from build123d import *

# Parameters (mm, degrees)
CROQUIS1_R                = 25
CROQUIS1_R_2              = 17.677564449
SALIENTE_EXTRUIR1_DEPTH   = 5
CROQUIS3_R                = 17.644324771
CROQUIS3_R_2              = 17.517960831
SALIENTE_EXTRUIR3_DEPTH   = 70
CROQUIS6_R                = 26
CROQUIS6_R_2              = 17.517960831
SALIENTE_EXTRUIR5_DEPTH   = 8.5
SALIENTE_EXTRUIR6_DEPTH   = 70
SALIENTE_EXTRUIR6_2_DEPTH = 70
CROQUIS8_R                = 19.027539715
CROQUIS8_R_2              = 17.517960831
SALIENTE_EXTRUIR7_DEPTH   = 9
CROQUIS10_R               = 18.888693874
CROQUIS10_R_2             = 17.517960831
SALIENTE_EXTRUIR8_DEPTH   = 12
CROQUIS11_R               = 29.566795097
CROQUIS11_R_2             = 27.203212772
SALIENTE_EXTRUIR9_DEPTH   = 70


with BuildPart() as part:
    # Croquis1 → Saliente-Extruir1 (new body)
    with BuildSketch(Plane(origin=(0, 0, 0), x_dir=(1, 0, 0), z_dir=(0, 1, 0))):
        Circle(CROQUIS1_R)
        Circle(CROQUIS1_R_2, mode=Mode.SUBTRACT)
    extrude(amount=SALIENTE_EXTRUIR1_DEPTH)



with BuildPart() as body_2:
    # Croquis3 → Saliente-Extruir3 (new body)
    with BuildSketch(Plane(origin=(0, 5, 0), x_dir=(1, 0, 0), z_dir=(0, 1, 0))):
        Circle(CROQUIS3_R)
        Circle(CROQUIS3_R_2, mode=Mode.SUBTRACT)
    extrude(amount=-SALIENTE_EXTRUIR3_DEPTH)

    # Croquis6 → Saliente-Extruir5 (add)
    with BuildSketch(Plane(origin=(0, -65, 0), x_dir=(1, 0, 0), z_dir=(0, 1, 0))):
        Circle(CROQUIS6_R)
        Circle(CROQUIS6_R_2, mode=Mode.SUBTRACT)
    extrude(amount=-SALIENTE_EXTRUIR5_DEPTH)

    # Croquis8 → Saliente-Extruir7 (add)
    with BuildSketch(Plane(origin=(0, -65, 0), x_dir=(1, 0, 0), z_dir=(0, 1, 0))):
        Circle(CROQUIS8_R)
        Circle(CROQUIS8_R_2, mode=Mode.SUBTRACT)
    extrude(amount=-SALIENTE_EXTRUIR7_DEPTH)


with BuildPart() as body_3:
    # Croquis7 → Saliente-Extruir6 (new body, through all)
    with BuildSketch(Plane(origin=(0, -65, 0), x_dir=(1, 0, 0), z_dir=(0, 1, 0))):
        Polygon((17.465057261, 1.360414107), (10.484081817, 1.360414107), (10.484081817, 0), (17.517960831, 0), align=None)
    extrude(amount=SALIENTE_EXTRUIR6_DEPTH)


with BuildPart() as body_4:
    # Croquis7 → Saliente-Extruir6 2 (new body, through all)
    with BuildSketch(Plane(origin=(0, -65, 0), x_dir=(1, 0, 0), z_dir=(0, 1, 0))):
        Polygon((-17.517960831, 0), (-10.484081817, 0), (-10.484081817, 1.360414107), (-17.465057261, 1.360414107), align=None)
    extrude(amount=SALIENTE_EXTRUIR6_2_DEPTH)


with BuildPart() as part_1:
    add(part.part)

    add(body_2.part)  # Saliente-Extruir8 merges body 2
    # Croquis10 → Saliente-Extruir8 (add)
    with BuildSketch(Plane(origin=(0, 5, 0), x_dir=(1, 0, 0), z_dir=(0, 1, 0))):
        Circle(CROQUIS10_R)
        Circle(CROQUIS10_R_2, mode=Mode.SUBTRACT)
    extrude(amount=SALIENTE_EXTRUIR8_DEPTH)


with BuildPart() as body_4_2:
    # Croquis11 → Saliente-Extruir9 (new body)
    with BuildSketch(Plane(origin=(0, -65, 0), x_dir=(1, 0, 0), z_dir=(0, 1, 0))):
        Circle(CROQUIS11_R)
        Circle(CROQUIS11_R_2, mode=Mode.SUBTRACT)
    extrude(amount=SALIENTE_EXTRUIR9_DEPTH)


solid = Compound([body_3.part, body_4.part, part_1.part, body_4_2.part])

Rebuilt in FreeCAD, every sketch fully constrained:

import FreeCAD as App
import Part
import Sketcher
from FreeCAD import Vector
Q = App.Units.Quantity


def add_polygon(sketch, points):
    """Adds a closed chain of lines whose ends are joined by coincident constraints."""
    first, n = sketch.GeometryCount, len(points)
    for a, b in zip(points, points[1:] + points[:1]):
        sketch.addGeometry(Part.LineSegment(App.Vector(*a, 0), App.Vector(*b, 0)), False)
    for i in range(n):
        sketch.addConstraint(Sketcher.Constraint("Coincident", first + i, 2, first + (i + 1) % n, 1))

doc = App.newDocument("Part")
body = doc.addObject("PartDesign::Body", "Body")

# Sketch on XZ plane
sketch1 = doc.addObject("Sketcher::SketchObject", "Sketch")
body.addObject(sketch1)
sketch1.AttachmentSupport = (doc.XZ_Plane, [""])
sketch1.MapMode = "FlatFace"
sketch1.addGeometry([
    Part.Circle(Vector(0, 0, 0), Vector(0, 0, 1), 25),
    Part.Circle(Vector(0, 0, 0), Vector(0, 0, 1), 18),
], False)
sketch1.addConstraint([
    Sketcher.Constraint("Coincident", 0, 3, -1, 1),
    Sketcher.Constraint("Coincident", 1, 3, -1, 1),
    Sketcher.Constraint("Diameter", 0, Q("50 mm")),
    Sketcher.Constraint("Diameter", 1, Q("35.355129 mm")),
])
pad1 = doc.addObject("PartDesign::Pad", "Pad")
body.addObject(pad1)
pad1.Profile = sketch1
pad1.Length = 5
pad1.Reversed = True
body2 = doc.addObject("PartDesign::Body", "Body001")

# Sketch on XZ plane
sketch2 = doc.addObject("Sketcher::SketchObject", "Sketch001")
body2.addObject(sketch2)
sketch2.AttachmentSupport = (doc.getObject("XZ_Plane001"), [""])
sketch2.MapMode = "FlatFace"
sketch2.AttachmentOffset = App.Placement(Vector(0, 0, -5), App.Rotation())
sketch2.addGeometry([
    Part.Circle(Vector(0, 0, 0), Vector(0, 0, 1), 18),
    Part.Circle(Vector(0, 0, 0), Vector(0, 0, 1), 18),
], False)
sketch2.addConstraint([
    Sketcher.Constraint("Coincident", 0, 3, -1, 1),
    Sketcher.Constraint("Coincident", 1, 3, -1, 1),
    Sketcher.Constraint("Diameter", 0, Q("35.28865 mm")),
    Sketcher.Constraint("Diameter", 1, Q("35.035922 mm")),
])
pad2 = doc.addObject("PartDesign::Pad", "Pad001")
body2.addObject(pad2)
pad2.Profile = sketch2
pad2.Length = 70

# Sketch on XZ plane
sketch3 = doc.addObject("Sketcher::SketchObject", "Sketch002")
body2.addObject(sketch3)
sketch3.AttachmentSupport = (doc.getObject("XZ_Plane001"), [""])
sketch3.MapMode = "FlatFace"
sketch3.AttachmentOffset = App.Placement(Vector(0, 0, 65), App.Rotation())
sketch3.addGeometry([
    Part.Circle(Vector(0, 0, 0), Vector(0, 0, 1), 26),
    Part.Circle(Vector(0, 0, 0), Vector(0, 0, 1), 18),
], False)
sketch3.addConstraint([
    Sketcher.Constraint("Coincident", 0, 3, -1, 1),
    Sketcher.Constraint("Coincident", 1, 3, -1, 1),
    Sketcher.Constraint("Diameter", 0, Q("52 mm")),
    Sketcher.Constraint("Diameter", 1, Q("35.035922 mm")),
])
pad3 = doc.addObject("PartDesign::Pad", "Pad002")
body2.addObject(pad3)
pad3.Profile = sketch3
pad3.Length = 8.5

# Sketch on XZ plane
sketch4 = doc.addObject("Sketcher::SketchObject", "Sketch003")
body2.addObject(sketch4)
sketch4.AttachmentSupport = (doc.getObject("XZ_Plane001"), [""])
sketch4.MapMode = "FlatFace"
sketch4.AttachmentOffset = App.Placement(Vector(0, 0, 65), App.Rotation())
sketch4.addGeometry([
    Part.Circle(Vector(0, 0, 0), Vector(0, 0, 1), 19),
    Part.Circle(Vector(0, 0, 0), Vector(0, 0, 1), 18),
], False)
sketch4.addConstraint([
    Sketcher.Constraint("Coincident", 0, 3, -1, 1),
    Sketcher.Constraint("Coincident", 1, 3, -1, 1),
    Sketcher.Constraint("Diameter", 0, Q("38.055079 mm")),
    Sketcher.Constraint("Diameter", 1, Q("35.035922 mm")),
])
pad4 = doc.addObject("PartDesign::Pad", "Pad003")
body2.addObject(pad4)
pad4.Profile = sketch4
pad4.Length = 9
body3 = doc.addObject("PartDesign::Body", "Body002")

# Sketch on XZ plane
sketch5 = doc.addObject("Sketcher::SketchObject", "Sketch004")
body3.addObject(sketch5)
sketch5.AttachmentSupport = (doc.getObject("XZ_Plane002"), [""])
sketch5.MapMode = "FlatFace"
sketch5.AttachmentOffset = App.Placement(Vector(0, 0, 65), App.Rotation())
add_polygon(sketch5, [(17.5, -1.4), (10.5, -1.4), (10.5, 0), (17.5, 0)])  # lines 0-3
sketch5.addConstraint([
    Sketcher.Constraint("Horizontal", 0),
    Sketcher.Constraint("Vertical", 1),
    Sketcher.Constraint("Horizontal", 2),
    Sketcher.Constraint("PointOnObject", 1, 2, -1),
    Sketcher.Constraint("DistanceX", 2, 1, 2, 2, Q("7.033879 mm")),
    Sketcher.Constraint("DistanceX", 0, 2, 0, 1, Q("6.980975 mm")),
    Sketcher.Constraint("DistanceY", 1, 1, 1, 2, Q("1.360414 mm")),
    Sketcher.Constraint("DistanceX", -1, 1, 0, 2, Q("10.484082 mm")),
])
pad5 = doc.addObject("PartDesign::Pad", "Pad004")
body3.addObject(pad5)
pad5.Profile = sketch5
pad5.Length = 70
pad5.Reversed = True
body4 = doc.addObject("PartDesign::Body", "Body003")

# Sketch on XZ plane
sketch6 = doc.addObject("Sketcher::SketchObject", "Sketch005")
body4.addObject(sketch6)
sketch6.AttachmentSupport = (doc.getObject("XZ_Plane003"), [""])
sketch6.MapMode = "FlatFace"
sketch6.AttachmentOffset = App.Placement(Vector(0, 0, 65), App.Rotation())
add_polygon(sketch6, [(-17.5, 0), (-10.5, 0), (-10.5, -1.4), (-17.5, -1.4)])  # lines 0-3
sketch6.addConstraint([
    Sketcher.Constraint("Horizontal", 0),
    Sketcher.Constraint("Vertical", 1),
    Sketcher.Constraint("Horizontal", 2),
    Sketcher.Constraint("PointOnObject", 0, 2, -1),
    Sketcher.Constraint("DistanceX", 0, 1, 0, 2, Q("7.033879 mm")),
    Sketcher.Constraint("DistanceX", 2, 2, 2, 1, Q("6.980975 mm")),
    Sketcher.Constraint("DistanceY", 1, 2, 1, 1, Q("1.360414 mm")),
    Sketcher.Constraint("DistanceX", 0, 2, -1, 1, Q("10.484082 mm")),
])
pad6 = doc.addObject("PartDesign::Pad", "Pad005")
body4.addObject(pad6)
pad6.Profile = sketch6
pad6.Length = 70
pad6.Reversed = True
body.AllowCompound = True
doc.recompute()

boolean = doc.addObject("PartDesign::Boolean", "Boolean")
body.addObject(boolean)
boolean.Type = "Fuse"
boolean.addObjects([body2])

# Sketch on XZ plane
sketch7 = doc.addObject("Sketcher::SketchObject", "Sketch006")
body.addObject(sketch7)
sketch7.AttachmentSupport = (doc.XZ_Plane, [""])
sketch7.MapMode = "FlatFace"
sketch7.AttachmentOffset = App.Placement(Vector(0, 0, -5), App.Rotation())
sketch7.addGeometry([
    Part.Circle(Vector(0, 0, 0), Vector(0, 0, 1), 19),
    Part.Circle(Vector(0, 0, 0), Vector(0, 0, 1), 18),
], False)
sketch7.addConstraint([
    Sketcher.Constraint("Coincident", 0, 3, -1, 1),
    Sketcher.Constraint("Coincident", 1, 3, -1, 1),
    Sketcher.Constraint("Diameter", 1, Q("35.035922 mm")),
    Sketcher.Constraint("Diameter", 0, Q("37.777388 mm")),
])
pad7 = doc.addObject("PartDesign::Pad", "Pad006")
body.addObject(pad7)
pad7.Profile = sketch7
pad7.Length = 12
pad7.Reversed = True
body5 = doc.addObject("PartDesign::Body", "Body004")

# Sketch on XZ plane
sketch8 = doc.addObject("Sketcher::SketchObject", "Sketch007")
body5.addObject(sketch8)
sketch8.AttachmentSupport = (doc.getObject("XZ_Plane004"), [""])
sketch8.MapMode = "FlatFace"
sketch8.AttachmentOffset = App.Placement(Vector(0, 0, 65), App.Rotation())
sketch8.addGeometry([
    Part.Circle(Vector(0, 0, 0), Vector(0, 0, 1), 30),
    Part.Circle(Vector(0, 0, 0), Vector(0, 0, 1), 27),
], False)
sketch8.addConstraint([
    Sketcher.Constraint("Coincident", 0, 3, -1, 1),
    Sketcher.Constraint("Coincident", 1, 3, -1, 1),
    Sketcher.Constraint("Diameter", 0, Q("59.13359 mm")),
    Sketcher.Constraint("Diameter", 1, Q("54.406426 mm")),
])
pad8 = doc.addObject("PartDesign::Pad", "Pad007")
body5.addObject(pad8)
pad8.Profile = sketch8
pad8.Length = 70
pad8.Reversed = True

doc.recompute()
